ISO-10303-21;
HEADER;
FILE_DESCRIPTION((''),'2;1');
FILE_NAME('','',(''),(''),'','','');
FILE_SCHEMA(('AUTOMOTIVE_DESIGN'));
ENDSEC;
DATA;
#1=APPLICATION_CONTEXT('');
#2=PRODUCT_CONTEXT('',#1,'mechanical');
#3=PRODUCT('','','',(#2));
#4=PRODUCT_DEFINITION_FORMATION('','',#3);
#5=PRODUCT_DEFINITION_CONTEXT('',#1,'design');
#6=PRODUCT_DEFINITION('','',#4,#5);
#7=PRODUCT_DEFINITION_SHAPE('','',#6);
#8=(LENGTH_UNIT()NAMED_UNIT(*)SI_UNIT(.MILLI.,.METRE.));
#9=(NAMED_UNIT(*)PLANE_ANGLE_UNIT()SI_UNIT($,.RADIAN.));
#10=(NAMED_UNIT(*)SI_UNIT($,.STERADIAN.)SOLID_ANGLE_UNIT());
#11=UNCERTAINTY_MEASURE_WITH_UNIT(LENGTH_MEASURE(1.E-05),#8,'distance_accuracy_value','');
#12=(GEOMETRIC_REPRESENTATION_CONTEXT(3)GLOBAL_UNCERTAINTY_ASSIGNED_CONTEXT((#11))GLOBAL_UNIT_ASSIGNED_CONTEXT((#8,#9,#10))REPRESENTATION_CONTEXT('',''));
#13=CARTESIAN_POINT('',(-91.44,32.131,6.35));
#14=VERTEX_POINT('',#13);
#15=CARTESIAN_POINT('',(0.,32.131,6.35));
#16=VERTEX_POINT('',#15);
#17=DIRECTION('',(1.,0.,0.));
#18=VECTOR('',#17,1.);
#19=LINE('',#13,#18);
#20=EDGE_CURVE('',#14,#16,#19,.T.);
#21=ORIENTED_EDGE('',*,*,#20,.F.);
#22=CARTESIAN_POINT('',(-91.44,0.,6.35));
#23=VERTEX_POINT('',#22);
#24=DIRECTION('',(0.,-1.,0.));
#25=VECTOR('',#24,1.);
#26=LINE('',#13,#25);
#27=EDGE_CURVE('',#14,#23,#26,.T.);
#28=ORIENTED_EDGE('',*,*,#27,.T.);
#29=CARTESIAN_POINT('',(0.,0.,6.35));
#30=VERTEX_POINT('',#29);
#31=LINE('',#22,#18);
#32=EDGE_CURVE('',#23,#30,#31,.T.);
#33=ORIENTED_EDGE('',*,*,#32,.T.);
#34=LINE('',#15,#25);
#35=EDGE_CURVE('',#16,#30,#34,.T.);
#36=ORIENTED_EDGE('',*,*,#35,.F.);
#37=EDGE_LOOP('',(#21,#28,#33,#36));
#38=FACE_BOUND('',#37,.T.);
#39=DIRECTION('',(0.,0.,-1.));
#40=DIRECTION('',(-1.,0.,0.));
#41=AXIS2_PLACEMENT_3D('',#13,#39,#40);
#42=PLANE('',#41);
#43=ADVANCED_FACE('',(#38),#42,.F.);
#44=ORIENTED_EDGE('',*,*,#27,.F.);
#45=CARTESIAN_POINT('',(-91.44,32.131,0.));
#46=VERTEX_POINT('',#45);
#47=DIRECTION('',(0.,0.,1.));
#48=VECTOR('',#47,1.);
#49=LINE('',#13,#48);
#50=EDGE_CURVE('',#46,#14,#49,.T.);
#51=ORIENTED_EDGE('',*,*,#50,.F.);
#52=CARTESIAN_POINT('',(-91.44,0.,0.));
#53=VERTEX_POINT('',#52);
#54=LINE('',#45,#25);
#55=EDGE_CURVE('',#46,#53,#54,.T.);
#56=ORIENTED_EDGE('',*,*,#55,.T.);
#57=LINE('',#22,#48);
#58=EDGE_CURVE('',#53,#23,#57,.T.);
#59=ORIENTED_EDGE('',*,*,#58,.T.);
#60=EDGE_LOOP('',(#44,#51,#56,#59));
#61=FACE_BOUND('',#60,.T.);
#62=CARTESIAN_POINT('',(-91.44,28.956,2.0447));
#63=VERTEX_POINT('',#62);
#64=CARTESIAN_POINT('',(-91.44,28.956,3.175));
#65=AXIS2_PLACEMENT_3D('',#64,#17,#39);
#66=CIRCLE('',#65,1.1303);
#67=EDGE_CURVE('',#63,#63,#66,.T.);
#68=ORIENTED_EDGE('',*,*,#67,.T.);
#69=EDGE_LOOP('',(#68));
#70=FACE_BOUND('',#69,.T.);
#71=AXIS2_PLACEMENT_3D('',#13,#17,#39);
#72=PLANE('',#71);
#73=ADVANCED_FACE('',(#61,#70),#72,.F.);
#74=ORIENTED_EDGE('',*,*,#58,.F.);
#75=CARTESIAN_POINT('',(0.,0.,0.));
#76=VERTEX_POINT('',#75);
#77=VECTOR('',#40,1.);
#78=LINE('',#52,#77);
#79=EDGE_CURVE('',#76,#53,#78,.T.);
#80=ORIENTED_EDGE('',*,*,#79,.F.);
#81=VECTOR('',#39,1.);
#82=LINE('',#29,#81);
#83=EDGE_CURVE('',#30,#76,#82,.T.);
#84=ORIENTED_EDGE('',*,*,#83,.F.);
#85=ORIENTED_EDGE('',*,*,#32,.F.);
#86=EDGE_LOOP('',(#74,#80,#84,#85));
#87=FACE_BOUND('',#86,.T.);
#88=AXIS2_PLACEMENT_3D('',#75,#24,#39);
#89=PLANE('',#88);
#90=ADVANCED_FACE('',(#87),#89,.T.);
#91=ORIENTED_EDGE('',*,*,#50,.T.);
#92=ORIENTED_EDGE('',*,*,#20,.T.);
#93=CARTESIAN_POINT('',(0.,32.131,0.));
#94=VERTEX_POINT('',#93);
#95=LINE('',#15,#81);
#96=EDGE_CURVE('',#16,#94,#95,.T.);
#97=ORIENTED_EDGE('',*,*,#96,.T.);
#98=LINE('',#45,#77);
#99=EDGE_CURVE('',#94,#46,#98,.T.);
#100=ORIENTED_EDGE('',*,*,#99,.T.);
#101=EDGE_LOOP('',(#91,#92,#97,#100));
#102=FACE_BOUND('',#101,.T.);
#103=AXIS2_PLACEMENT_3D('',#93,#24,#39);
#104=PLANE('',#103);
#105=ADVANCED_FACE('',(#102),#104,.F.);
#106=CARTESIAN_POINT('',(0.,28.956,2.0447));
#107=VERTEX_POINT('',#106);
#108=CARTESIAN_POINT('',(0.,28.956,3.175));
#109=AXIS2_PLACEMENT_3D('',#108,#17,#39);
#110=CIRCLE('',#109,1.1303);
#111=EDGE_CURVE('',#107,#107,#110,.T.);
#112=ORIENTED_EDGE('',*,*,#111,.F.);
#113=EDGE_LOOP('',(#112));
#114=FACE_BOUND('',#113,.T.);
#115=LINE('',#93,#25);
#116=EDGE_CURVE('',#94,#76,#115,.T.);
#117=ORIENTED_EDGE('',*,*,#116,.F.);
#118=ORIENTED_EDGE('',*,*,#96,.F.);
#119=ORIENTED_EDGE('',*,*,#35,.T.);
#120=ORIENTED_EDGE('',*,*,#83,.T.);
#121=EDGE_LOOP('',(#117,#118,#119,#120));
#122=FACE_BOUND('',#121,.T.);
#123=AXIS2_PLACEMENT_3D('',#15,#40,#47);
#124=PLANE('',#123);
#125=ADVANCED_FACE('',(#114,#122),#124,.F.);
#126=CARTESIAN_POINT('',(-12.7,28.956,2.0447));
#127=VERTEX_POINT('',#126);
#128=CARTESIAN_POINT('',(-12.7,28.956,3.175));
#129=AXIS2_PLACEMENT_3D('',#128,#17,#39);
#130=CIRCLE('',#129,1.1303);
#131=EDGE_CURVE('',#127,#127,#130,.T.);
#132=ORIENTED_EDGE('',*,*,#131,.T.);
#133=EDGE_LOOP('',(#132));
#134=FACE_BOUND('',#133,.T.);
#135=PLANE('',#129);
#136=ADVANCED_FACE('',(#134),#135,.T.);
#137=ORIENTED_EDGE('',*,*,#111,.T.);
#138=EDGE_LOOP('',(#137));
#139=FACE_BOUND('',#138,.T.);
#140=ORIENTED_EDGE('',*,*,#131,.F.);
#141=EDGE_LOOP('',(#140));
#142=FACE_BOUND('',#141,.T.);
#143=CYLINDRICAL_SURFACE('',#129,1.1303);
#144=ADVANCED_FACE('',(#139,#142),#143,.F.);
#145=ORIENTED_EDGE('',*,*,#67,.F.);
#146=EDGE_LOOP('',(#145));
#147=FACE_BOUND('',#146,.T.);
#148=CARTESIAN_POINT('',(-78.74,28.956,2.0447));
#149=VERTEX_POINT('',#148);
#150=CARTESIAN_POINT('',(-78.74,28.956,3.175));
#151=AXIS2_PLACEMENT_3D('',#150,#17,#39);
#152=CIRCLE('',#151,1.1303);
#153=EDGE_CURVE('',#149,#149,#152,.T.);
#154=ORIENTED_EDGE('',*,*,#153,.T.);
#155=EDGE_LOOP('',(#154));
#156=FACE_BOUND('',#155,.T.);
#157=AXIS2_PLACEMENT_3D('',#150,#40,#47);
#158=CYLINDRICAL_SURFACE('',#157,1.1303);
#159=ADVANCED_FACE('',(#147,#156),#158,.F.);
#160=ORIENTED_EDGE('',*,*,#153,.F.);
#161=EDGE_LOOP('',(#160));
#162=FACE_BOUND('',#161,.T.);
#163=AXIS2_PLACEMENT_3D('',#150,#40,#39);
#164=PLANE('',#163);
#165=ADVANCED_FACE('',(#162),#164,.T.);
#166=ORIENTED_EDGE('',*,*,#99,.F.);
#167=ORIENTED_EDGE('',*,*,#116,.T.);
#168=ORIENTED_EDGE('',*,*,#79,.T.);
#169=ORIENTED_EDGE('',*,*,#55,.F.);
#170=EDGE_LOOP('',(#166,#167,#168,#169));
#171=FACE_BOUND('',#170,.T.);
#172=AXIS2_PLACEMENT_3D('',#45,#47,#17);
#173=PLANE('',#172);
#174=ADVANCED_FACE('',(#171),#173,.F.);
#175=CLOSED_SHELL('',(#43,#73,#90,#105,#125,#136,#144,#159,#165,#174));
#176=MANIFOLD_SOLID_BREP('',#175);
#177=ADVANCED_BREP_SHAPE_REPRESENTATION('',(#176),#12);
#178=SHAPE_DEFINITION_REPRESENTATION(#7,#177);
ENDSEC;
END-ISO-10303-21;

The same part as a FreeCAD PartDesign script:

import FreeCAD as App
import Part
import Sketcher
Q = App.Units.Quantity


def add_polygon(sketch, points):
    """Adds a closed chain of lines whose ends are joined by coincident constraints."""
    first, n = sketch.GeometryCount, len(points)
    for a, b in zip(points, points[1:] + points[:1]):
        sketch.addGeometry(Part.LineSegment(App.Vector(*a, 0), App.Vector(*b, 0)), False)
    for i in range(n):
        sketch.addConstraint(Sketcher.Constraint("Coincident", first + i, 2, first + (i + 1) % n, 1))

doc = App.newDocument("Part")
body = doc.addObject("PartDesign::Body", "Body")

# Sketch on XZ plane
sketch1 = body.newObject("Sketcher::SketchObject", "Sketch")
sketch1.AttachmentSupport = (doc.getObject("XZ_Plane"), [""])
sketch1.MapMode = "FlatFace"
add_polygon(sketch1, [(-91, 0), (-91, 6), (0, 6), (0, 0)])  # lines 0-3
sketch1.addConstraint(Sketcher.Constraint("Vertical", 0))
sketch1.addConstraint(Sketcher.Constraint("Horizontal", 1))
sketch1.addConstraint(Sketcher.Constraint("Vertical", 2))
sketch1.addConstraint(Sketcher.Constraint("Horizontal", 3))
sketch1.addConstraint(Sketcher.Constraint("Coincident", 2, 2, -1, 1))
sketch1.addConstraint(Sketcher.Constraint("DistanceX", 1, 1, 1, 2, Q("3.6 in")))
sketch1.addConstraint(Sketcher.Constraint("DistanceY", 0, 1, 0, 2, Q("0.25 in")))
pad1 = body.newObject("PartDesign::Pad", "Pad")
pad1.Profile = sketch1
pad1.Length = Q("1.265 in")
pad1.Reversed = True

# Sketch on YZ plane
sketch2 = body.newObject("Sketcher::SketchObject", "Sketch001")
sketch2.AttachmentSupport = (doc.getObject("YZ_Plane"), [""])
sketch2.MapMode = "FlatFace"
sketch2.addGeometry(Part.Circle(App.Vector(29, 3.2, 0), App.Vector(0, 0, 1), 1.1), False)
sketch2.addConstraint(Sketcher.Constraint("Diameter", 0, Q("0.089 in")))
sketch2.addConstraint(Sketcher.Constraint("DistanceX", -1, 1, 0, 3, Q("1.14 in")))
sketch2.addConstraint(Sketcher.Constraint("DistanceY", -1, 1, 0, 3, Q("0.125 in")))
pocket1 = body.newObject("PartDesign::Pocket", "Pocket")
pocket1.Profile = sketch2
pocket1.Length = Q("0.5 in")
doc.recompute()

datumplane = body.newObject("PartDesign::Plane", "DatumPlane")
datumplane.AttachmentSupport = (doc.getObject("YZ_Plane"), [""])
datumplane.MapMode = "FlatFace"
datumplane.AttachmentOffset = App.Placement(App.Vector(0, 0, -1.8 * 25.4), App.Rotation())
mirrored = body.newObject("PartDesign::Mirrored", "Mirrored")
mirrored.Originals = [pocket1]
mirrored.MirrorPlane = (datumplane, [""])
body.Tip = mirrored

doc.recompute()
